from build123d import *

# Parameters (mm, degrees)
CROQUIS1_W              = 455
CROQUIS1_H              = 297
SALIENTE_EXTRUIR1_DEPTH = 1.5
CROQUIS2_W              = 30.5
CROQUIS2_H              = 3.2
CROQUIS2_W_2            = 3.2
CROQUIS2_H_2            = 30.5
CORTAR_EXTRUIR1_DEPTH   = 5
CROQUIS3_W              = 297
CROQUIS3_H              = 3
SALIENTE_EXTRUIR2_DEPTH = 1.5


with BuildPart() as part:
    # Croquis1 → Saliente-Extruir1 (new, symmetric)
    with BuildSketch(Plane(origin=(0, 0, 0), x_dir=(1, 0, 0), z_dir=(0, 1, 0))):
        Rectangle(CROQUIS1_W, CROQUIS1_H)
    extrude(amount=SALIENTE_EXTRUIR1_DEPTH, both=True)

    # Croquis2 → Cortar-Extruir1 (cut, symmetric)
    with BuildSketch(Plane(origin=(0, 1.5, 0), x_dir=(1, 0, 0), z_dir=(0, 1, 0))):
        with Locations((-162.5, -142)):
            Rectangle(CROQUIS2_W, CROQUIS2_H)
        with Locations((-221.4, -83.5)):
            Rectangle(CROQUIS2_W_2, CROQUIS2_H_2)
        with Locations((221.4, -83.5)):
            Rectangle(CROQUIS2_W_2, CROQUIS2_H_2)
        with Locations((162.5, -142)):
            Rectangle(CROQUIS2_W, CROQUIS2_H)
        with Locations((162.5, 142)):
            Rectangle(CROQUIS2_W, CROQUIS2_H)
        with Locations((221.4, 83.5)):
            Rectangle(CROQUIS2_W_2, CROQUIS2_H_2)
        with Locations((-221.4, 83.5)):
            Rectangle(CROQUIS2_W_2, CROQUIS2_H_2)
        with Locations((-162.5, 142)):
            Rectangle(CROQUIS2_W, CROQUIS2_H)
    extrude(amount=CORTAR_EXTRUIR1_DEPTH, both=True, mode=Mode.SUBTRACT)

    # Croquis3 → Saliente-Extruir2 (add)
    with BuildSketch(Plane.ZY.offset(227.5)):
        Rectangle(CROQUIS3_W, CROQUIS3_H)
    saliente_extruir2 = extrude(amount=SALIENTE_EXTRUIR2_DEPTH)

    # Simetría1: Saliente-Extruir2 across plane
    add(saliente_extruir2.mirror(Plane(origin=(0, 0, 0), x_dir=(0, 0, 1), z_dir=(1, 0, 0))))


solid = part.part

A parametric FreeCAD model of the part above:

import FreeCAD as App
import Part
import Sketcher

V = App.Vector


def add_polygon(sketch, points):
    """Adds a closed chain of lines whose ends are joined by coincident constraints."""
    first, n = sketch.GeometryCount, len(points)
    for a, b in zip(points, points[1:] + points[:1]):
        sketch.addGeometry(Part.LineSegment(App.Vector(*a, 0), App.Vector(*b, 0)), False)
    for i in range(n):
        sketch.addConstraint(Sketcher.Constraint("Coincident", first + i, 2, first + (i + 1) % n, 1))

doc = App.newDocument("Part")
params = doc.addObject("Spreadsheet::Sheet", "Params")
for row, (alias, value) in enumerate([
    ("sketch1_width", "455 mm"),
    ("sketch1_height", "297 mm"),
    ("pad1_length", "3 mm"),
    ("sketch2_width", "30.5 mm"),
    ("sketch2_width2", "3.2 mm"),
    ("pocket1_length", "10 mm"),
    ("sketch3_width", "3 mm"),
    ("sketch3_height", "297 mm"),
    ("pad2_length", "1.5 mm"),
], start=1):
    params.set(f"A{row}", alias)
    params.set(f"B{row}", "=" + value)
    params.setAlias(f"B{row}", alias)

body = doc.addObject("PartDesign::Body", "Body")

sketch1 = body.newObject("Sketcher::SketchObject", "Sketch")
sketch1.AttachmentSupport = (doc.getObject("XZ_Plane"), [""])
sketch1.MapMode = "FlatFace"
add_polygon(sketch1, [(-228, -148), (-228, 148), (228, 148), (228, -148)])
sketch1.addConstraint(Sketcher.Constraint("Vertical", 0))
sketch1.addConstraint(Sketcher.Constraint("Horizontal", 1))
sketch1.addConstraint(Sketcher.Constraint("Vertical", 2))
sketch1.addConstraint(Sketcher.Constraint("Horizontal", 3))
sketch1.addConstraint(Sketcher.Constraint("Symmetric", 0, 2, 2, 2, -1, 1))
sketch1.addConstraint(Sketcher.Constraint("DistanceX", 1, 1, 1, 2, 455.0))
sketch1.addConstraint(Sketcher.Constraint("DistanceY", 0, 1, 0, 2, 297.0))
sketch1.setExpression("Constraints[9]", "Params.sketch1_width")
sketch1.setExpression("Constraints[10]", "Params.sketch1_height")
pad1 = body.newObject("PartDesign::Pad", "Pad")
pad1.Profile = sketch1
pad1.setExpression("Length", "Params.pad1_length")
pad1.Midplane = True

sketch2 = body.newObject("Sketcher::SketchObject", "Sketch001")
sketch2.AttachmentSupport = (doc.getObject("XZ_Plane"), [""])
sketch2.MapMode = "FlatFace"
sketch2.AttachmentOffset = App.Placement(V(0, 0, -1.5), App.Rotation())
add_polygon(sketch2, [(-177.8, 140.4), (-177.8, 143.6), (-147.2, 143.6), (-147.2, 140.4)])
add_polygon(sketch2, [(-223, 68.2), (-223, 98.8), (-219.8, 98.8), (-219.8, 68.2)])
add_polygon(sketch2, [(219.8, 68.2), (219.8, 98.8), (223, 98.8), (223, 68.2)])
add_polygon(sketch2, [(147.2, 140.4), (147.2, 143.6), (177.8, 143.6), (177.8, 140.4)])
add_polygon(sketch2, [(147.2, -143.6), (147.2, -140.4), (177.8, -140.4), (177.8, -143.6)])
add_polygon(sketch2, [(219.8, -98.8), (219.8, -68.2), (223, -68.2), (223, -98.8)])
add_polygon(sketch2, [(-223, -98.8), (-223, -68.2), (-219.8, -68.2), (-219.8, -98.8)])
add_polygon(sketch2, [(-177.8, -143.6), (-177.8, -140.4), (-147.2, -140.4), (-147.2, -143.6)])
sketch2.addConstraint(Sketcher.Constraint("Vertical", 0))
sketch2.addConstraint(Sketcher.Constraint("Horizontal", 1))
sketch2.addConstraint(Sketcher.Constraint("Vertical", 2))
sketch2.addConstraint(Sketcher.Constraint("Horizontal", 3))
sketch2.addConstraint(Sketcher.Constraint("Vertical", 4))
sketch2.addConstraint(Sketcher.Constraint("Horizontal", 5))
sketch2.addConstraint(Sketcher.Constraint("Vertical", 6))
sketch2.addConstraint(Sketcher.Constraint("Horizontal", 7))
sketch2.addConstraint(Sketcher.Constraint("Vertical", 8))
sketch2.addConstraint(Sketcher.Constraint("Horizontal", 9))
sketch2.addConstraint(Sketcher.Constraint("Vertical", 10))
sketch2.addConstraint(Sketcher.Constraint("Horizontal", 11))
sketch2.addConstraint(Sketcher.Constraint("Vertical", 12))
sketch2.addConstraint(Sketcher.Constraint("Horizontal", 13))
sketch2.addConstraint(Sketcher.Constraint("Vertical", 14))
sketch2.addConstraint(Sketcher.Constraint("Horizontal", 15))
sketch2.addConstraint(Sketcher.Constraint("Vertical", 16))
sketch2.addConstraint(Sketcher.Constraint("Horizontal", 17))
sketch2.addConstraint(Sketcher.Constraint("Vertical", 18))
sketch2.addConstraint(Sketcher.Constraint("Horizontal", 19))
sketch2.addConstraint(Sketcher.Constraint("Vertical", 20))
sketch2.addConstraint(Sketcher.Constraint("Horizontal", 21))
sketch2.addConstraint(Sketcher.Constraint("Vertical", 22))
sketch2.addConstraint(Sketcher.Constraint("Horizontal", 23))
sketch2.addConstraint(Sketcher.Constraint("Vertical", 24))
sketch2.addConstraint(Sketcher.Constraint("Horizontal", 25))
sketch2.addConstraint(Sketcher.Constraint("Vertical", 26))
sketch2.addConstraint(Sketcher.Constraint("Horizontal", 27))
sketch2.addConstraint(Sketcher.Constraint("Vertical", 28))
sketch2.addConstraint(Sketcher.Constraint("Horizontal", 29))
sketch2.addConstraint(Sketcher.Constraint("Vertical", 30))
sketch2.addConstraint(Sketcher.Constraint("Horizontal", 31))
sketch2.addConstraint(Sketcher.Constraint("Symmetric", 2, 2, 16, 2, -1, 1))
sketch2.addConstraint(Sketcher.Constraint("Symmetric", 0, 2, 18, 2, -1, 1))
sketch2.addConstraint(Sketcher.Constraint("Symmetric", 6, 2, 20, 2, -1, 1))
sketch2.addConstraint(Sketcher.Constraint("Symmetric", 4, 2, 22, 2, -1, 1))
sketch2.addConstraint(Sketcher.Constraint("Symmetric", 10, 2, 24, 2, -1, 1))
sketch2.addConstraint(Sketcher.Constraint("Symmetric", 8, 2, 26, 2, -1, 1))
sketch2.addConstraint(Sketcher.Constraint("Symmetric", 14, 2, 28, 2, -1, 1))
sketch2.addConstraint(Sketcher.Constraint("Symmetric", 12, 2, 30, 2, -1, 1))
sketch2.addConstraint(Sketcher.Constraint("Symmetric", 5, 2, 8, 2, -2))
sketch2.addConstraint(Sketcher.Constraint("Symmetric", 7, 2, 10, 2, -2))
sketch2.addConstraint(Sketcher.Constraint("Symmetric", 1, 2, 12, 2, -2))
sketch2.addConstraint(Sketcher.Constraint("Symmetric", 3, 2, 14, 2, -2))
sketch2.addConstraint(Sketcher.Constraint("Equal", 27, 0))
sketch2.addConstraint(Sketcher.Constraint("Equal", 31, 4))
sketch2.addConstraint(Sketcher.Constraint("DistanceX", 1, 1, 1, 2, 30.5))
sketch2.addConstraint(Sketcher.Constraint("DistanceX", 5, 1, 5, 2, 3.2))
sketch2.addConstraint(Sketcher.Constraint("DistanceX", 4, 2, -1, 1, 223.0))
sketch2.addConstraint(Sketcher.Constraint("DistanceY", 24, 2, 4, 2, 167.0))
sketch2.addConstraint(Sketcher.Constraint("DistanceY", -1, 1, 0, 2, 143.6))
sketch2.addConstraint(Sketcher.Constraint("DistanceX", 1, 2, 12, 2, 294.5))
sketch2.setExpression("Constraints[78]", "Params.sketch2_width")
sketch2.setExpression("Constraints[79]", "Params.sketch2_width2")
pocket1 = body.newObject("PartDesign::Pocket", "Pocket")
pocket1.Profile = sketch2
pocket1.setExpression("Length", "Params.pocket1_length")
pocket1.Midplane = True

sketch3 = body.newObject("Sketcher::SketchObject", "Sketch002")
sketch3.AttachmentSupport = (doc.getObject("YZ_Plane"), [""])
sketch3.MapMode = "FlatFace"
sketch3.AttachmentOffset = App.Placement(V(0, 0, -227.5), App.Rotation())
add_polygon(sketch3, [(1.5, -148.5), (-1.5, -148.5), (-1.5, 148.5), (1.5, 148.5)])
sketch3.addConstraint(Sketcher.Constraint("Horizontal", 0))
sketch3.addConstraint(Sketcher.Constraint("Vertical", 1))
sketch3.addConstraint(Sketcher.Constraint("Horizontal", 2))
sketch3.addConstraint(Sketcher.Constraint("Vertical", 3))
sketch3.addConstraint(Sketcher.Constraint("Symmetric", 0, 2, 2, 2, -1, 1))
sketch3.addConstraint(Sketcher.Constraint("DistanceX", 0, 2, 0, 1, 3.0))
sketch3.addConstraint(Sketcher.Constraint("DistanceY", 1, 1, 1, 2, 297.0))
sketch3.setExpression("Constraints[9]", "Params.sketch3_width")
sketch3.setExpression("Constraints[10]", "Params.sketch3_height")
pad2 = body.newObject("PartDesign::Pad", "Pad001")
pad2.Profile = sketch3
pad2.setExpression("Length", "Params.pad2_length")
pad2.Reversed = True
doc.recompute()

mirrored = body.newObject("PartDesign::Mirrored", "Mirrored")
mirrored.Originals = [pad2]
mirrored.MirrorPlane = (doc.getObject("YZ_Plane"), [""])
body.Tip = mirrored

doc.recompute()
